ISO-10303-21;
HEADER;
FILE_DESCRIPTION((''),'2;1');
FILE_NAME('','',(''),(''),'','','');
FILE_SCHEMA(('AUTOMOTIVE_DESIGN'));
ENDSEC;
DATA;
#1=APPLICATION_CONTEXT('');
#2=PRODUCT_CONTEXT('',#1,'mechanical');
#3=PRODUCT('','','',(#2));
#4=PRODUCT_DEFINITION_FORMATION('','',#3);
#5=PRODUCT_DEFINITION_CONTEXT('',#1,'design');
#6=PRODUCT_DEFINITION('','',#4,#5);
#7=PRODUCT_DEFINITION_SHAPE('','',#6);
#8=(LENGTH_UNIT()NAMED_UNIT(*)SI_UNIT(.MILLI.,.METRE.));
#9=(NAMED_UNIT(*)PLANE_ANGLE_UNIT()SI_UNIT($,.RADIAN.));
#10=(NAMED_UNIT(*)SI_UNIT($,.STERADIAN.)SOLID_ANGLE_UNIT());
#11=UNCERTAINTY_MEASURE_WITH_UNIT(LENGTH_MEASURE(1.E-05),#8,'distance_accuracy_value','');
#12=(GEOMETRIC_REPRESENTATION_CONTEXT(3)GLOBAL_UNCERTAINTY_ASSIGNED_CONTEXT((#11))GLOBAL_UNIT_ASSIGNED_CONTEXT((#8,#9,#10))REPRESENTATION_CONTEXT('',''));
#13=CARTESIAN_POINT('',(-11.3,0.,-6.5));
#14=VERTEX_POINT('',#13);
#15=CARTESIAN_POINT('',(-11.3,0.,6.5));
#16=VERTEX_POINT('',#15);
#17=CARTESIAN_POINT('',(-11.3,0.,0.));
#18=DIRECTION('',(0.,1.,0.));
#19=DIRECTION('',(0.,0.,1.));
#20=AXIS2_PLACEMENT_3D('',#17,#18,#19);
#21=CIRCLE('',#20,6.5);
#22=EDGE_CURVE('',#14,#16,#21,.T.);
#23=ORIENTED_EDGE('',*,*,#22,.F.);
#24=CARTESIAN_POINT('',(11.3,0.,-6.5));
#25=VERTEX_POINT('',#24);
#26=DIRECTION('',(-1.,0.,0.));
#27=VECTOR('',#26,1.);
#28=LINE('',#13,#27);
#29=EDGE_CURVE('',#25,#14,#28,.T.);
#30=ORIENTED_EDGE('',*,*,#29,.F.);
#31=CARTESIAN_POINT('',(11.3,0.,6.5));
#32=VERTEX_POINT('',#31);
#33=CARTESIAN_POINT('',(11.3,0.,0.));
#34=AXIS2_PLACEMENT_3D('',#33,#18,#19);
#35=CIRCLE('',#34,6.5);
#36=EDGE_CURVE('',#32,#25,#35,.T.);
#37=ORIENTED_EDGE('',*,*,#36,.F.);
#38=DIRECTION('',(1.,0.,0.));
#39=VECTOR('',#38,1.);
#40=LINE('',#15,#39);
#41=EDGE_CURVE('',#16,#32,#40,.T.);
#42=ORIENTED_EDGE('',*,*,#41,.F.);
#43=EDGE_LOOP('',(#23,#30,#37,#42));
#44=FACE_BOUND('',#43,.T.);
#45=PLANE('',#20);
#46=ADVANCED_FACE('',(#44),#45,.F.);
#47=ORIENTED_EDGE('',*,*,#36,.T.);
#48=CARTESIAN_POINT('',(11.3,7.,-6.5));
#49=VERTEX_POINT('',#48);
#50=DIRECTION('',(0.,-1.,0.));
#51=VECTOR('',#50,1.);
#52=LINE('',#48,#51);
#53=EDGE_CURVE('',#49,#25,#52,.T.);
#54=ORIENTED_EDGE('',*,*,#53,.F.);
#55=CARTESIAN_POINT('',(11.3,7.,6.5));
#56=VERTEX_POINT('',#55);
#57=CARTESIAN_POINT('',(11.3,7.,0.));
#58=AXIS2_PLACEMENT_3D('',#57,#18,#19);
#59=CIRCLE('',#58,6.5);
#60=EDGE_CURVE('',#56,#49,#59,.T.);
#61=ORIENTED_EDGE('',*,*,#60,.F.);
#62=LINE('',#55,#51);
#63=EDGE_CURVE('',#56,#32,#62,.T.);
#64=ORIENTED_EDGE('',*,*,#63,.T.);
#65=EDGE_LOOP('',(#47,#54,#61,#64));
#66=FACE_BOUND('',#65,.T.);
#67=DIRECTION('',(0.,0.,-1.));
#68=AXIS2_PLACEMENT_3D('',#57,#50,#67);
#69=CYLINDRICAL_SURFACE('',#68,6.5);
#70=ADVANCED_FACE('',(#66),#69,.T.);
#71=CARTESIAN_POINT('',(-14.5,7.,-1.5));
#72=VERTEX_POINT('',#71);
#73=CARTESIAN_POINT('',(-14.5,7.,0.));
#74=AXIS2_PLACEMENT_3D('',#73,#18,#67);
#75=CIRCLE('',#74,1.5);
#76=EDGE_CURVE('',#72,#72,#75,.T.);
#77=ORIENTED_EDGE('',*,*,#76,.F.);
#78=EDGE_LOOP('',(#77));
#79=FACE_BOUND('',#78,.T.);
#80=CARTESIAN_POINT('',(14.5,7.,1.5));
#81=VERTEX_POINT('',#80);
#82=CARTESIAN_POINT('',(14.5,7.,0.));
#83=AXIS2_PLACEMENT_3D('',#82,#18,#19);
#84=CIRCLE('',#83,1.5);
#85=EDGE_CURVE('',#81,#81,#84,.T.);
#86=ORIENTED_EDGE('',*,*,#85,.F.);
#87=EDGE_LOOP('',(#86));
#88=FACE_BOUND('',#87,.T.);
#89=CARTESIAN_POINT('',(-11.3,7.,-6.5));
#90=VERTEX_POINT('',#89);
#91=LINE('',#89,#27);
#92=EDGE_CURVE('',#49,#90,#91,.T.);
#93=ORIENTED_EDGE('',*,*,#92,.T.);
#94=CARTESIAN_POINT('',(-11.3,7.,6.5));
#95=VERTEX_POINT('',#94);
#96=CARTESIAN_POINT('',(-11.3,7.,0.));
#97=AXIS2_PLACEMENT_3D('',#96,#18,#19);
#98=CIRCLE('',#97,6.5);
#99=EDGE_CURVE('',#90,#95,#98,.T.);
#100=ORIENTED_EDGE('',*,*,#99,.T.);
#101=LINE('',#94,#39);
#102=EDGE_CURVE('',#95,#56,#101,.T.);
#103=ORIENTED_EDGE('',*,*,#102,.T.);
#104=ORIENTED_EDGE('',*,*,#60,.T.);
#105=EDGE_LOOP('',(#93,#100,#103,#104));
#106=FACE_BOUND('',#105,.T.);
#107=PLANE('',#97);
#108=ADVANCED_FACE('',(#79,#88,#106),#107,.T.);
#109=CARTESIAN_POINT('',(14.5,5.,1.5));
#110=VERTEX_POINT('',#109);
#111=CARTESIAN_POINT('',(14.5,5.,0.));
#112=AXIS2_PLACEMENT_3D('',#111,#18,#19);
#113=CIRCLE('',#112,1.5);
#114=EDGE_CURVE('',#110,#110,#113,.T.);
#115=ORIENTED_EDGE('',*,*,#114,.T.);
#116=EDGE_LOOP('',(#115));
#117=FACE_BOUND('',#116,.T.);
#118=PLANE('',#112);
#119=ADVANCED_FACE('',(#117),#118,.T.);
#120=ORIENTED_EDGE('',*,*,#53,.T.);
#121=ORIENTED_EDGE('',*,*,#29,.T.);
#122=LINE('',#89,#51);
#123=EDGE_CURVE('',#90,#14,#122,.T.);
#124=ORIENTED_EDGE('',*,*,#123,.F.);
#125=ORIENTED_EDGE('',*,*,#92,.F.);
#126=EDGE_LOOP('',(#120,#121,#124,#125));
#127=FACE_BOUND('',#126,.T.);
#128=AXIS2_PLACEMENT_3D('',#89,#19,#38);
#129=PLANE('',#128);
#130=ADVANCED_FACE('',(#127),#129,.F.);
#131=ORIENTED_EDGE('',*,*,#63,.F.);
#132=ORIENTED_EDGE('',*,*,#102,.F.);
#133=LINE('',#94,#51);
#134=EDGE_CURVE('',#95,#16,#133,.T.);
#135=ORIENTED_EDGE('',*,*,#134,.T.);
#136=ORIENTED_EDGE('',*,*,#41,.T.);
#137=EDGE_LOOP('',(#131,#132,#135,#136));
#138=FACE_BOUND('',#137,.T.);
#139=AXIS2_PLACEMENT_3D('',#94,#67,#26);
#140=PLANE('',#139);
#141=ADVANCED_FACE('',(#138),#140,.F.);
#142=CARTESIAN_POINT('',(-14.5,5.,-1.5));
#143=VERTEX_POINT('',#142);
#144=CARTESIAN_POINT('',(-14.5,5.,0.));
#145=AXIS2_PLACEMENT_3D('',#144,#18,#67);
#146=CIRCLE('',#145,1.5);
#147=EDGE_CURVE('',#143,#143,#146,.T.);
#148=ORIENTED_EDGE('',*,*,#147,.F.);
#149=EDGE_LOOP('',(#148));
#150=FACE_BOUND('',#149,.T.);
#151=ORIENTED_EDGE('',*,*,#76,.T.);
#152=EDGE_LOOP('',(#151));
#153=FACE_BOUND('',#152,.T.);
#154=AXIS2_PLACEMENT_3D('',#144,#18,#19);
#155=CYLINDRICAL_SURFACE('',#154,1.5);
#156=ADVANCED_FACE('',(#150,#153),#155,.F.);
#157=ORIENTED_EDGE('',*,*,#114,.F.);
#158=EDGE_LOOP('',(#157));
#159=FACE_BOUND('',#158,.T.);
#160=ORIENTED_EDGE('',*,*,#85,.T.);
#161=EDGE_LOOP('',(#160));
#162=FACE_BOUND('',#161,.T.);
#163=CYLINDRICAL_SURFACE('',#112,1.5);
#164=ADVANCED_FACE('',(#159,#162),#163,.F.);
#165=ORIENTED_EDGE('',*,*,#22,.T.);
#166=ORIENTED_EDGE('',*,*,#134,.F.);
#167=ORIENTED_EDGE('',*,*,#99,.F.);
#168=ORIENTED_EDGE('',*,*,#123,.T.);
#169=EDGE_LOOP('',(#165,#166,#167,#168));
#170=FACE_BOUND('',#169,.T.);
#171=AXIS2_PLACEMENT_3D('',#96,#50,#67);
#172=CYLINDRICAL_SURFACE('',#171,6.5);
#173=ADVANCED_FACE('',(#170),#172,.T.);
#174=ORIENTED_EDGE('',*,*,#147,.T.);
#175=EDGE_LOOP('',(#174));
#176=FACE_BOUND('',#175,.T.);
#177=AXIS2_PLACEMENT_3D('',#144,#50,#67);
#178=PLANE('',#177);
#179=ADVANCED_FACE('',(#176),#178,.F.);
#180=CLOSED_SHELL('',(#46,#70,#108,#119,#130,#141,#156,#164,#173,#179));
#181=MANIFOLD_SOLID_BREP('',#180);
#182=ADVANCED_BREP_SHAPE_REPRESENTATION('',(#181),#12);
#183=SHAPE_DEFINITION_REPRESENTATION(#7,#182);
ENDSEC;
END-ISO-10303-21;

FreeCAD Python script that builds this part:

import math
import FreeCAD as App
import Part
import Sketcher
from FreeCAD import Vector
Q = App.Units.Quantity

doc = App.newDocument("Part")
params = doc.addObject("Spreadsheet::Sheet", "Params")
for row, (alias, value) in enumerate([
    ("sketch1_radius", "6.5 mm"),
    ("sketch1_width", "22.6 mm"),
    ("pad1_length", "7 mm"),
    ("sketch2_diameter", "3 mm"),
    ("pocket1_length", "2 mm"),
], start=1):
    params.set(f"A{row}", alias)
    params.set(f"B{row}", "=" + value)
    params.setAlias(f"B{row}", alias)

body = doc.addObject("PartDesign::Body", "Body")

# Sketch on XZ plane
sketch1 = body.newObject("Sketcher::SketchObject", "Sketch")
sketch1.AttachmentSupport = (doc.getObject("XZ_Plane"), [""])
sketch1.MapMode = "FlatFace"
sketch1.addGeometry(Part.LineSegment(Vector(11, -6, 0), Vector(-11, -6, 0)), False)
sketch1.addGeometry(Part.ArcOfCircle(Part.Circle(Vector(-11, 0, 0), Vector(0, 0, 1), 6), math.radians(90), math.radians(270)), False)
sketch1.addGeometry(Part.LineSegment(Vector(-11, 6, 0), Vector(11, 6, 0)), False)
sketch1.addGeometry(Part.ArcOfCircle(Part.Circle(Vector(11, 0, 0), Vector(0, 0, 1), 6), math.radians(-90), math.radians(90)), False)
sketch1.addConstraint(Sketcher.Constraint("Tangent", 0, 2, 1, 2))
sketch1.addConstraint(Sketcher.Constraint("Tangent", 1, 1, 2, 1))
sketch1.addConstraint(Sketcher.Constraint("Tangent", 2, 2, 3, 2))
sketch1.addConstraint(Sketcher.Constraint("Tangent", 3, 1, 0, 1))
sketch1.addConstraint(Sketcher.Constraint("Horizontal", 0))
sketch1.addConstraint(Sketcher.Constraint("Horizontal", 2))
sketch1.addConstraint(Sketcher.Constraint("Symmetric", 1, 3, 3, 3, -1, 1))
sketch1.addConstraint(Sketcher.Constraint("Radius", 1, Q("6.5 mm")))
sketch1.addConstraint(Sketcher.Constraint("DistanceX", 0, 2, 0, 1, Q("22.6 mm")))
sketch1.setExpression("Constraints[7]", "Params.sketch1_radius")
sketch1.setExpression("Constraints[8]", "Params.sketch1_width")
pad1 = body.newObject("PartDesign::Pad", "Pad")
pad1.Profile = sketch1
pad1.setExpression("Length", "Params.pad1_length")
pad1.Reversed = True

# Sketch on XZ plane
sketch2 = body.newObject("Sketcher::SketchObject", "Sketch001")
sketch2.AttachmentSupport = (doc.getObject("XZ_Plane"), [""])
sketch2.MapMode = "FlatFace"
sketch2.AttachmentOffset = App.Placement(Vector(0, 0, -7), App.Rotation())
sketch2.addGeometry(Part.Circle(Vector(14.5, 0, 0), Vector(0, 0, 1), 1.5), False)
sketch2.addGeometry(Part.Circle(Vector(-14.5, 0, 0), Vector(0, 0, 1), 1.5), False)
sketch2.addConstraint(Sketcher.Constraint("Equal", 0, 1))
sketch2.addConstraint(Sketcher.Constraint("Symmetric", 0, 3, 1, 3, -1, 1))
sketch2.addConstraint(Sketcher.Constraint("PointOnObject", 0, 3, -1))
sketch2.addConstraint(Sketcher.Constraint("Diameter", 0, Q("3 mm")))
sketch2.addConstraint(Sketcher.Constraint("DistanceX", 1, 3, 0, 3, Q("29 mm")))
sketch2.setExpression("Constraints[3]", "Params.sketch2_diameter")
pocket1 = body.newObject("PartDesign::Pocket", "Pocket")
pocket1.Profile = sketch2
pocket1.setExpression("Length", "Params.pocket1_length")
pocket1.Reversed = True

doc.recompute()
